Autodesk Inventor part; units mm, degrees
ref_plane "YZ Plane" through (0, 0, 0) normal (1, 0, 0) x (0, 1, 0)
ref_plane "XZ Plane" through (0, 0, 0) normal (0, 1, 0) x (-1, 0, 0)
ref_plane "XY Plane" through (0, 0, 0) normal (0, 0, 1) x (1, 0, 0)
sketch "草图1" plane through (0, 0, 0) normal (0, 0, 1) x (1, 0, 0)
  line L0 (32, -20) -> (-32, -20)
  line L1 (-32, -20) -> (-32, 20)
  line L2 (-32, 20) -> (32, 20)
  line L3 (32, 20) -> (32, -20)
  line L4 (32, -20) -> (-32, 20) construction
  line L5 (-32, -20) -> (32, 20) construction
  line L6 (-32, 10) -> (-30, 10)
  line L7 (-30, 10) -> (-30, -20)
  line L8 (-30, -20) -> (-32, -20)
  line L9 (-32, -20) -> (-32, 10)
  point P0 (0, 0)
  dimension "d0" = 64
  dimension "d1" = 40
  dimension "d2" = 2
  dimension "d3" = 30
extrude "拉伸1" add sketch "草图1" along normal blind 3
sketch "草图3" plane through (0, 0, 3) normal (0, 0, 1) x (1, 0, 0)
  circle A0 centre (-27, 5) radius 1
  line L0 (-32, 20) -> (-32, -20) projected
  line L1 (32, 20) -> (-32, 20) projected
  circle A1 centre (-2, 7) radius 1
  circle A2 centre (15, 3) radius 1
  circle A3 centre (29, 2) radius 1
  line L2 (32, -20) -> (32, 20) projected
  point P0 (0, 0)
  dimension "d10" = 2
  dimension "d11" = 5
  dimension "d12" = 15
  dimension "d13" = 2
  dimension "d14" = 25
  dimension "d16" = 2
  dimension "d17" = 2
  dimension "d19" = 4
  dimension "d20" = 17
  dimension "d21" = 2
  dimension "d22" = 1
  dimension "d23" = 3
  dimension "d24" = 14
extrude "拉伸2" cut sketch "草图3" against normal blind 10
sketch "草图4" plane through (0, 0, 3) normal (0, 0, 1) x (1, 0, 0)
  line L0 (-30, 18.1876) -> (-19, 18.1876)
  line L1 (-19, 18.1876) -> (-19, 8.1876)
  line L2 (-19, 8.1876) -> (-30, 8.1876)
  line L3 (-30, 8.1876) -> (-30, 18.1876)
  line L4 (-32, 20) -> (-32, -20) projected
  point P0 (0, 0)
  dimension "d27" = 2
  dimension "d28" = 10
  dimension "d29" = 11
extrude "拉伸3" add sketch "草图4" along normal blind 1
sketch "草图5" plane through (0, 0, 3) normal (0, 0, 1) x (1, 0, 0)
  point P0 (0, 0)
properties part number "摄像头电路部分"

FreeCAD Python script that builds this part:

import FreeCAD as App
import Part
import Sketcher
from FreeCAD import Vector
Q = App.Units.Quantity

doc = App.newDocument("Part")
body = doc.addObject("PartDesign::Body", "Body")

sketch1 = doc.addObject("Sketcher::SketchObject", "Sketch")
body.addObject(sketch1)
sketch1.AttachmentSupport = (doc.XY_Plane, [""])
sketch1.MapMode = "FlatFace"
sketch1.addGeometry(Part.LineSegment(Vector(32, -20, 0), Vector(32, 20, 0)), False)
sketch1.addGeometry(Part.LineSegment(Vector(32, 20, 0), Vector(-32, 20, 0)), False)
sketch1.addGeometry(Part.LineSegment(Vector(-32, 20, 0), Vector(-32, -20, 0)), False)
sketch1.addGeometry(Part.LineSegment(Vector(-32, -20, 0), Vector(32, -20, 0)), False)
sketch1.addConstraint(Sketcher.Constraint("Coincident", 0, 2, 1, 1))
sketch1.addConstraint(Sketcher.Constraint("Coincident", 1, 2, 2, 1))
sketch1.addConstraint(Sketcher.Constraint("Coincident", 2, 2, 3, 1))
sketch1.addConstraint(Sketcher.Constraint("Coincident", 3, 2, 0, 1))
sketch1.addConstraint(Sketcher.Constraint("Vertical", 0))
sketch1.addConstraint(Sketcher.Constraint("Horizontal", 1))
sketch1.addConstraint(Sketcher.Constraint("Vertical", 2))
sketch1.addConstraint(Sketcher.Constraint("Horizontal", 3))
sketch1.addConstraint(Sketcher.Constraint("Symmetric", 0, 2, 2, 2, -1, 1))
sketch1.addConstraint(Sketcher.Constraint("DistanceX", 1, 2, 1, 1, Q("64 mm")))
sketch1.addConstraint(Sketcher.Constraint("DistanceY", 0, 1, 0, 2, Q("40 mm")))
pad1 = doc.addObject("PartDesign::Pad", "Pad")
body.addObject(pad1)
pad1.Profile = sketch1
pad1.Length = 3

sketch2 = doc.addObject("Sketcher::SketchObject", "Sketch001")
body.addObject(sketch2)
sketch2.AttachmentSupport = (doc.XY_Plane, [""])
sketch2.MapMode = "FlatFace"
sketch2.AttachmentOffset = App.Placement(Vector(0, 0, 3), App.Rotation())
sketch2.addGeometry(Part.Circle(Vector(-27, 5, 0), Vector(0, 0, 1), 1), False)
sketch2.addGeometry(Part.Circle(Vector(-2, 7, 0), Vector(0, 0, 1), 1), False)
sketch2.addGeometry(Part.Circle(Vector(15, 3, 0), Vector(0, 0, 1), 1), False)
sketch2.addGeometry(Part.Circle(Vector(29, 2, 0), Vector(0, 0, 1), 1), False)
sketch2.addConstraint(Sketcher.Constraint("Equal", 0, 1))
sketch2.addConstraint(Sketcher.Constraint("Equal", 1, 2))
sketch2.addConstraint(Sketcher.Constraint("Equal", 2, 3))
sketch2.addConstraint(Sketcher.Constraint("Diameter", 0, Q("2 mm")))
sketch2.addConstraint(Sketcher.Constraint("DistanceY", -1, 1, 0, 3, Q("5 mm")))
sketch2.addConstraint(Sketcher.Constraint("DistanceX", 1, 3, -1, 1, Q("2 mm")))
sketch2.addConstraint(Sketcher.Constraint("DistanceX", -1, 1, 2, 3, Q("15 mm")))
sketch2.addConstraint(Sketcher.Constraint("DistanceY", -1, 1, 2, 3, Q("3 mm")))
sketch2.addConstraint(Sketcher.Constraint("DistanceY", -1, 1, 3, 3, Q("2 mm")))
sketch2.addConstraint(Sketcher.Constraint("DistanceX", 0, 3, 1, 3, Q("25 mm")))
sketch2.addConstraint(Sketcher.Constraint("DistanceY", 0, 3, 1, 3, Q("2 mm")))
sketch2.addConstraint(Sketcher.Constraint("DistanceX", 2, 3, 3, 3, Q("14 mm")))
pocket1 = doc.addObject("PartDesign::Pocket", "Pocket")
body.addObject(pocket1)
pocket1.Profile = sketch2
pocket1.Length = 10

sketch3 = doc.addObject("Sketcher::SketchObject", "Sketch002")
body.addObject(sketch3)
sketch3.AttachmentSupport = (doc.XY_Plane, [""])
sketch3.MapMode = "FlatFace"
sketch3.AttachmentOffset = App.Placement(Vector(0, 0, 3), App.Rotation())
sketch3.addGeometry(Part.LineSegment(Vector(-19, 18, 0), Vector(-30, 18, 0)), False)
sketch3.addGeometry(Part.LineSegment(Vector(-30, 18, 0), Vector(-30, 8, 0)), False)
sketch3.addGeometry(Part.LineSegment(Vector(-30, 8, 0), Vector(-19, 8, 0)), False)
sketch3.addGeometry(Part.LineSegment(Vector(-19, 8, 0), Vector(-19, 18, 0)), False)
sketch3.addConstraint(Sketcher.Constraint("Coincident", 0, 2, 1, 1))
sketch3.addConstraint(Sketcher.Constraint("Coincident", 1, 2, 2, 1))
sketch3.addConstraint(Sketcher.Constraint("Coincident", 2, 2, 3, 1))
sketch3.addConstraint(Sketcher.Constraint("Coincident", 3, 2, 0, 1))
sketch3.addConstraint(Sketcher.Constraint("Horizontal", 0))
sketch3.addConstraint(Sketcher.Constraint("Vertical", 1))
sketch3.addConstraint(Sketcher.Constraint("Horizontal", 2))
sketch3.addConstraint(Sketcher.Constraint("Vertical", 3))
sketch3.addConstraint(Sketcher.Constraint("DistanceX", 0, 2, 0, 1, Q("11 mm")))
sketch3.addConstraint(Sketcher.Constraint("DistanceY", 1, 2, 1, 1, Q("10 mm")))
sketch3.addConstraint(Sketcher.Constraint("DistanceX", 0, 2, -1, 1, Q("30 mm")))
sketch3.addConstraint(Sketcher.Constraint("DistanceY", -1, 1, 0, 2, Q("18.1876 mm")))
pad2 = doc.addObject("PartDesign::Pad", "Pad001")
body.addObject(pad2)
pad2.Profile = sketch3
pad2.Length = 1

doc.recompute()
